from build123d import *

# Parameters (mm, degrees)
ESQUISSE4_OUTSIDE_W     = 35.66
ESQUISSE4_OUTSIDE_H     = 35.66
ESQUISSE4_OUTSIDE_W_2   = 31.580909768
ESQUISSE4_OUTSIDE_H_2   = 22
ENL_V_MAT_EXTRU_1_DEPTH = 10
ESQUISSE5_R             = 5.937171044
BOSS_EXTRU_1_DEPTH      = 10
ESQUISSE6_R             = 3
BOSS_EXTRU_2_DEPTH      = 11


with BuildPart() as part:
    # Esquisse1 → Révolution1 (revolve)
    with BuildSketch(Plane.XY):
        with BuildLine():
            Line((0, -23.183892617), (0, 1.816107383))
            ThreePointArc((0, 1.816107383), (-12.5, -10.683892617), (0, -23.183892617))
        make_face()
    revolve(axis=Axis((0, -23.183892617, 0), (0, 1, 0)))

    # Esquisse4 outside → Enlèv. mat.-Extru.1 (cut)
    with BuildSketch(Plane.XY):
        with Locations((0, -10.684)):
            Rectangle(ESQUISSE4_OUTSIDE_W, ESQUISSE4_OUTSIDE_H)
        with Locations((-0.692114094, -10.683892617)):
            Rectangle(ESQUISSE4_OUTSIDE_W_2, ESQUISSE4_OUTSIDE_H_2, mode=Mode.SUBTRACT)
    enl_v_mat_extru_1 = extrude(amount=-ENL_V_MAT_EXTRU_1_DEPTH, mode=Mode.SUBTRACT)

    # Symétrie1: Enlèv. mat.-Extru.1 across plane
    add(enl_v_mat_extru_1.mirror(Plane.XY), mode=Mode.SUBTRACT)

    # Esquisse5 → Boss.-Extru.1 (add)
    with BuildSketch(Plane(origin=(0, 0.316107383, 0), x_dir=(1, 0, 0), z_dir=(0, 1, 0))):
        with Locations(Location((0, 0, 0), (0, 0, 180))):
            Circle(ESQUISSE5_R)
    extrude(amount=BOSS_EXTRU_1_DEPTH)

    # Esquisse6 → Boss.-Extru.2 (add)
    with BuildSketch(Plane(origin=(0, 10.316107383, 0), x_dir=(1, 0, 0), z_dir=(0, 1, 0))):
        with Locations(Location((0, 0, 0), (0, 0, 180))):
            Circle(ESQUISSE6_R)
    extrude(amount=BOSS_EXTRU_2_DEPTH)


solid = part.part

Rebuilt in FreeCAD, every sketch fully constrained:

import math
import FreeCAD as App
import Part
import Sketcher

V = App.Vector


def add_polygon(sketch, points):
    """Adds a closed chain of lines whose ends are joined by coincident constraints."""
    first, n = sketch.GeometryCount, len(points)
    for a, b in zip(points, points[1:] + points[:1]):
        sketch.addGeometry(Part.LineSegment(App.Vector(*a, 0), App.Vector(*b, 0)), False)
    for i in range(n):
        sketch.addConstraint(Sketcher.Constraint("Coincident", first + i, 2, first + (i + 1) % n, 1))

doc = App.newDocument("Part")
body = doc.addObject("PartDesign::Body", "Body")

sketch1 = doc.addObject("Sketcher::SketchObject", "Sketch")
body.addObject(sketch1)
sketch1.AttachmentSupport = (doc.XY_Plane, [""])
sketch1.MapMode = "FlatFace"
sketch1.addGeometry(Part.LineSegment(V(0, -23, 0), V(0, 2, 0)), False)
sketch1.addGeometry(Part.ArcOfCircle(Part.Circle(V(0, -11, 0), V(0, 0, 1), 12), math.radians(90), math.radians(270)), False)
sketch1.addConstraint(Sketcher.Constraint("Coincident", 0, 1, 1, 2))
sketch1.addConstraint(Sketcher.Constraint("Coincident", 1, 1, 0, 2))
sketch1.addConstraint(Sketcher.Constraint("Vertical", 0))
sketch1.addConstraint(Sketcher.Constraint("PointOnObject", 1, 3, -2))
sketch1.addConstraint(Sketcher.Constraint("PointOnObject", 0, 1, -2))
sketch1.addConstraint(Sketcher.Constraint("Radius", 1, 12.5))
sketch1.addConstraint(Sketcher.Constraint("DistanceY", 1, 3, -1, 1, 10.683893))
revolution = doc.addObject("PartDesign::Revolution", "Revolution")
body.addObject(revolution)
revolution.Profile = sketch1
revolution.ReferenceAxis = (sketch1, ["V_Axis"])
revolution.Angle = 360

sketch2 = doc.addObject("Sketcher::SketchObject", "Sketch001")
body.addObject(sketch2)
sketch2.AttachmentSupport = (doc.XY_Plane, [""])
sketch2.MapMode = "FlatFace"
add_polygon(sketch2, [(-18, 7), (-18, -29), (18, -29), (18, 7)])
add_polygon(sketch2, [(15, -22), (-16, -22), (-16, 0), (15, 0)])
sketch2.addConstraint(Sketcher.Constraint("Vertical", 0))
sketch2.addConstraint(Sketcher.Constraint("Horizontal", 1))
sketch2.addConstraint(Sketcher.Constraint("Vertical", 2))
sketch2.addConstraint(Sketcher.Constraint("Horizontal", 3))
sketch2.addConstraint(Sketcher.Constraint("Horizontal", 4))
sketch2.addConstraint(Sketcher.Constraint("Vertical", 5))
sketch2.addConstraint(Sketcher.Constraint("Horizontal", 6))
sketch2.addConstraint(Sketcher.Constraint("Vertical", 7))
sketch2.addConstraint(Sketcher.Constraint("Equal", 3, 0))
sketch2.addConstraint(Sketcher.Constraint("DistanceY", 5, 1, 5, 2, 22.0))
sketch2.addConstraint(Sketcher.Constraint("DistanceX", 1, 1, 1, 2, 35.66))
sketch2.addConstraint(Sketcher.Constraint("DistanceX", 0, 2, -1, 1, 17.83))
sketch2.addConstraint(Sketcher.Constraint("DistanceY", 0, 2, -1, 1, 28.514))
sketch2.addConstraint(Sketcher.Constraint("DistanceX", 4, 2, 4, 1, 31.58091))
sketch2.addConstraint(Sketcher.Constraint("DistanceX", 4, 2, -1, 1, 16.482569))
sketch2.addConstraint(Sketcher.Constraint("DistanceY", 4, 2, -1, 1, 21.683893))
pocket1 = doc.addObject("PartDesign::Pocket", "Pocket")
body.addObject(pocket1)
pocket1.Profile = sketch2
pocket1.Length = 10
doc.recompute()

mirrored = doc.addObject("PartDesign::Mirrored", "Mirrored")
body.addObject(mirrored)
mirrored.Originals = [pocket1]
mirrored.MirrorPlane = (doc.XY_Plane, [""])
body.Tip = mirrored

sketch3 = doc.addObject("Sketcher::SketchObject", "Sketch002")
body.addObject(sketch3)
sketch3.AttachmentSupport = (doc.XZ_Plane, [""])
sketch3.MapMode = "FlatFace"
sketch3.AttachmentOffset = App.Placement(V(0, 0, -0.316107), App.Rotation())
sketch3.addGeometry(Part.Circle(V(0, 0, 0), V(0, 0, 1), 6), False)
sketch3.addConstraint(Sketcher.Constraint("Coincident", 0, 3, -1, 1))
sketch3.addConstraint(Sketcher.Constraint("Diameter", 0, 11.874342))
pad1 = doc.addObject("PartDesign::Pad", "Pad")
body.addObject(pad1)
pad1.Profile = sketch3
pad1.Length = 10
pad1.Reversed = True

sketch4 = doc.addObject("Sketcher::SketchObject", "Sketch003")
body.addObject(sketch4)
sketch4.AttachmentSupport = (doc.XZ_Plane, [""])
sketch4.MapMode = "FlatFace"
sketch4.AttachmentOffset = App.Placement(V(0, 0, -10.316107), App.Rotation())
sketch4.addGeometry(Part.Circle(V(0, 0, 0), V(0, 0, 1), 3), False)
sketch4.addConstraint(Sketcher.Constraint("Coincident", 0, 3, -1, 1))
sketch4.addConstraint(Sketcher.Constraint("Diameter", 0, 6.0))
pad2 = doc.addObject("PartDesign::Pad", "Pad001")
body.addObject(pad2)
pad2.Profile = sketch4
pad2.Length = 11
pad2.Reversed = True

doc.recompute()
